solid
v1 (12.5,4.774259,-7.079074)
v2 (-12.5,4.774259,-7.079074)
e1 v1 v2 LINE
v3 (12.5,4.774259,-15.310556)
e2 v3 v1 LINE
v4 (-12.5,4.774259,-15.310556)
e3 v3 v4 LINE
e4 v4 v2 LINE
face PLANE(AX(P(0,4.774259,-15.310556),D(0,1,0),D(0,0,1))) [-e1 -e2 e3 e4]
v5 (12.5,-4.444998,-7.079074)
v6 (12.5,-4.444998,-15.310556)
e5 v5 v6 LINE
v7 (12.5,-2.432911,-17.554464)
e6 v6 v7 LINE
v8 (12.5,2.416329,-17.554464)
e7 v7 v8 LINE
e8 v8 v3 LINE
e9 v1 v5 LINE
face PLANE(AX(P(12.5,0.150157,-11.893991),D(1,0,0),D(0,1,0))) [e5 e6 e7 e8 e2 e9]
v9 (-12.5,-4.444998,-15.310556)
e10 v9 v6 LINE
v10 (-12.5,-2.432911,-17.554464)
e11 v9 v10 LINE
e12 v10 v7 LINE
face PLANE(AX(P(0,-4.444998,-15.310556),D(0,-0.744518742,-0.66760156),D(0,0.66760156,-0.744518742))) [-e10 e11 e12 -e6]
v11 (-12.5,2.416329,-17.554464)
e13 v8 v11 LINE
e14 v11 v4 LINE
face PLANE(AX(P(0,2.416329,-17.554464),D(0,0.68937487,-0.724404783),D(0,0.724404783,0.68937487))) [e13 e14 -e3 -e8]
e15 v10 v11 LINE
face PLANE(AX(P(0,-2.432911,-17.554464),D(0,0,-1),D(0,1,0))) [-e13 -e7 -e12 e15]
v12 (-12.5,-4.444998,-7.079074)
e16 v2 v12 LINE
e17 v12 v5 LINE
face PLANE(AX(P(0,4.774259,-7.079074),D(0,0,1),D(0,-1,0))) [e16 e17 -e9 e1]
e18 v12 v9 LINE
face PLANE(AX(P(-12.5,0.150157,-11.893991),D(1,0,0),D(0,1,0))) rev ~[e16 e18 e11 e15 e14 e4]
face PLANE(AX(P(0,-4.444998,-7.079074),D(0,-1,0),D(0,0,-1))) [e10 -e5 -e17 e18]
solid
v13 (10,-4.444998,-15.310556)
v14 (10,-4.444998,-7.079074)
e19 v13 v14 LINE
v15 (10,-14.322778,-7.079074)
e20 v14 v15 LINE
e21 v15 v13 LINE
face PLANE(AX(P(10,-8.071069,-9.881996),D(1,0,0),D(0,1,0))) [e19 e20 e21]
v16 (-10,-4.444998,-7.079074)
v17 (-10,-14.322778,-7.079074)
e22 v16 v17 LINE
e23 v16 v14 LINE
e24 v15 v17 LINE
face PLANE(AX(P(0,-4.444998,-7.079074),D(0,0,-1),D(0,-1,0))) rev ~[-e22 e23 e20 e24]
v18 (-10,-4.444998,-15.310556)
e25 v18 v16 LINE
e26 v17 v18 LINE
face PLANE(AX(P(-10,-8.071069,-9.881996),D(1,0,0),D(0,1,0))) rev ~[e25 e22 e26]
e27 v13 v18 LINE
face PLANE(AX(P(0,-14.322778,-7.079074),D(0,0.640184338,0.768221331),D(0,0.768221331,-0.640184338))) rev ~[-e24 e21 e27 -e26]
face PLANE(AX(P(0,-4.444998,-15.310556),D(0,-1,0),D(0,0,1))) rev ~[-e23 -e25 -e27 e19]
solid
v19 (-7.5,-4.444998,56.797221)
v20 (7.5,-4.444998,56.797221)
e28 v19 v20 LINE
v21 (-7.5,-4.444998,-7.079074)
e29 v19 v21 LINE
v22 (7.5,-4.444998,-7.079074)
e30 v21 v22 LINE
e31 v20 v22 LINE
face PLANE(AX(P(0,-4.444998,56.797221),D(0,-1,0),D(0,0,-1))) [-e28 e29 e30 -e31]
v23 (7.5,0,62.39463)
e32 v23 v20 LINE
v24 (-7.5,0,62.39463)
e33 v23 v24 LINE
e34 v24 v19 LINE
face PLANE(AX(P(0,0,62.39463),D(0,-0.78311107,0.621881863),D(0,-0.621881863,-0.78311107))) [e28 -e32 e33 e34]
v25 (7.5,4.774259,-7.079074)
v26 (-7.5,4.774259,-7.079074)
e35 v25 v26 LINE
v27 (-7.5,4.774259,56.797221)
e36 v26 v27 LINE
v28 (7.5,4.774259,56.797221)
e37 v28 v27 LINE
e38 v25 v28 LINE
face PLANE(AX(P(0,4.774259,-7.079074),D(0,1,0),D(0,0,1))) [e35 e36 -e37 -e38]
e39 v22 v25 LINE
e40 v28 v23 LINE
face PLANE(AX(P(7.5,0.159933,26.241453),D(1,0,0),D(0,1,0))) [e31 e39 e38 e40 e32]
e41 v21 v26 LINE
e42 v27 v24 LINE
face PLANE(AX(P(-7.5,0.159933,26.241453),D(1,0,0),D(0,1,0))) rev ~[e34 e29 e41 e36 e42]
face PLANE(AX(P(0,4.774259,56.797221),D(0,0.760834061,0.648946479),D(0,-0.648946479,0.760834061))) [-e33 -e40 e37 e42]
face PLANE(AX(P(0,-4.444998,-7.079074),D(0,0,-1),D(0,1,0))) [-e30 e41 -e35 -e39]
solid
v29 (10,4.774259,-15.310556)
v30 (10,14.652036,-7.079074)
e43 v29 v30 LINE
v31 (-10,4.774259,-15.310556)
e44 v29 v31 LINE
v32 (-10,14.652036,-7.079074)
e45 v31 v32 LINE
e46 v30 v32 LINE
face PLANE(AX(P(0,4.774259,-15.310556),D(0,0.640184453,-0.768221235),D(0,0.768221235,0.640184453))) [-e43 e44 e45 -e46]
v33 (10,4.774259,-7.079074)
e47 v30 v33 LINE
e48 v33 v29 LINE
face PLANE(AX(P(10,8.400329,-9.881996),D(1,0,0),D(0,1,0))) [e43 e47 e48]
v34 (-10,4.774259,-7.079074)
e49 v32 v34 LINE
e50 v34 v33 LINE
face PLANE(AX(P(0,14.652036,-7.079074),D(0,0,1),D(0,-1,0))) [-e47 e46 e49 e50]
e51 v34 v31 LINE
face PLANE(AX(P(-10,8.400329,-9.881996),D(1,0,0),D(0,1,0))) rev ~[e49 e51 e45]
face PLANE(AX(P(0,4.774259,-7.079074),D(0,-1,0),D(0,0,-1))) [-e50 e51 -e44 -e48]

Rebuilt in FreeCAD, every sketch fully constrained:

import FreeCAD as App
import Part
import Sketcher

V = App.Vector
Q = App.Units.Quantity

doc = App.newDocument("Part")
body = doc.addObject("PartDesign::Body", "Body")

# Sketch on YZ plane
sketch1 = body.newObject("Sketcher::SketchObject", "Sketch")
sketch1.AttachmentSupport = (doc.getObject("YZ_Plane"), [""])
sketch1.MapMode = "FlatFace"
sketch1.addGeometry([
    Part.LineSegment(V(0, 62, 0), V(-4, 57, 0)),  # 0
    Part.LineSegment(V(-4, 57, 0), V(-4, -7, 0)),  # 1
    Part.LineSegment(V(-4, -7, 0), V(5, -7, 0)),  # 2
    Part.LineSegment(V(5, -7, 0), V(5, 57, 0)),  # 3
    Part.LineSegment(V(5, 57, 0), V(0, 62, 0)),  # 4
], False)
sketch1.addConstraint([
    Sketcher.Constraint("Coincident", 0, 2, 1, 1),
    Sketcher.Constraint("Coincident", 1, 2, 2, 1),
    Sketcher.Constraint("Coincident", 2, 2, 3, 1),
    Sketcher.Constraint("Coincident", 3, 2, 4, 1),
    Sketcher.Constraint("Coincident", 4, 2, 0, 1),
    Sketcher.Constraint("Vertical", 1),
    Sketcher.Constraint("Horizontal", 2),
    Sketcher.Constraint("Vertical", 3),
    Sketcher.Constraint("PointOnObject", 4, 2, -2),
    Sketcher.Constraint("Horizontal", 0, 2, 3, 2),
    Sketcher.Constraint("DistanceX", 2, 1, 2, 2, Q("9.219257 mm")),
    Sketcher.Constraint("DistanceY", 1, 2, 1, 1, Q("63.876295 mm")),
    Sketcher.Constraint("DistanceY", -1, 1, 0, 2, Q("56.797221 mm")),
    Sketcher.Constraint("DistanceX", -1, 1, 2, 2, Q("4.774259 mm")),
    Sketcher.Constraint("DistanceY", -1, 1, 4, 2, Q("62.39463 mm")),
])
pad1 = body.newObject("PartDesign::Pad", "Pad")
pad1.Profile = sketch1
pad1.Length = 15
pad1.Midplane = True
body2 = doc.addObject("PartDesign::Body", "Body001")
body2.AllowCompound = True

# Sketch on YZ plane
sketch2 = body2.newObject("Sketcher::SketchObject", "Sketch001")
sketch2.AttachmentSupport = (doc.getObject("YZ_Plane001"), [""])
sketch2.MapMode = "FlatFace"
sketch2.addGeometry([
    Part.LineSegment(V(-4, -15, 0), V(-4, -7, 0)),  # 0
    Part.LineSegment(V(-4, -7, 0), V(-14, -7, 0)),  # 1
    Part.LineSegment(V(-14, -7, 0), V(-4, -15, 0)),  # 2
    Part.LineSegment(V(15, -7, 0), V(5, -7, 0)),  # 3
    Part.LineSegment(V(5, -7, 0), V(5, -15, 0)),  # 4
    Part.LineSegment(V(5, -15, 0), V(15, -7, 0)),  # 5
], False)
sketch2.addConstraint([
    Sketcher.Constraint("Coincident", 0, 2, 1, 1),
    Sketcher.Constraint("Coincident", 1, 2, 2, 1),
    Sketcher.Constraint("Coincident", 2, 2, 0, 1),
    Sketcher.Constraint("Coincident", 3, 2, 4, 1),
    Sketcher.Constraint("Coincident", 4, 2, 5, 1),
    Sketcher.Constraint("Coincident", 5, 2, 3, 1),
    Sketcher.Constraint("Vertical", 0),
    Sketcher.Constraint("Horizontal", 1),
    Sketcher.Constraint("Horizontal", 3),
    Sketcher.Constraint("Vertical", 4),
    Sketcher.Constraint("Horizontal", 1, 2, 3, 2),
    Sketcher.Constraint("Horizontal", 2, 2, 4, 2),
    Sketcher.Constraint("DistanceX", 1, 2, 1, 1, Q("9.87778 mm")),
    Sketcher.Constraint("DistanceX", 3, 2, 3, 1, Q("9.877777 mm")),
    Sketcher.Constraint("DistanceY", 0, 1, 0, 2, Q("8.231482 mm")),
    Sketcher.Constraint("DistanceX", -1, 1, 3, 2, Q("4.774259 mm")),
    Sketcher.Constraint("DistanceX", 0, 2, -1, 1, Q("4.444998 mm")),
    Sketcher.Constraint("DistanceY", 0, 2, -1, 1, Q("7.079074 mm")),
])
pad2 = body2.newObject("PartDesign::Pad", "Pad001")
pad2.Profile = sketch2
pad2.Length = 20
pad2.Midplane = True
body3 = doc.addObject("PartDesign::Body", "Body002")

# Sketch on YZ plane
sketch3 = body3.newObject("Sketcher::SketchObject", "Sketch002")
sketch3.AttachmentSupport = (doc.getObject("YZ_Plane002"), [""])
sketch3.MapMode = "FlatFace"
sketch3.addGeometry([
    Part.LineSegment(V(4.8, -7.1, 0), V(-4.4, -7.1, 0)),  # 0
    Part.LineSegment(V(-4.4, -7.1, 0), V(-4.4, -15.3, 0)),  # 1
    Part.LineSegment(V(-4.4, -15.3, 0), V(-2.4, -17.6, 0)),  # 2
    Part.LineSegment(V(-2.4, -17.6, 0), V(2.4, -17.6, 0)),  # 3
    Part.LineSegment(V(2.4, -17.6, 0), V(4.8, -15.3, 0)),  # 4
    Part.LineSegment(V(4.8, -15.3, 0), V(4.8, -7.1, 0)),  # 5
], False)
sketch3.addConstraint([
    Sketcher.Constraint("Coincident", 0, 2, 1, 1),
    Sketcher.Constraint("Coincident", 1, 2, 2, 1),
    Sketcher.Constraint("Coincident", 2, 2, 3, 1),
    Sketcher.Constraint("Coincident", 3, 2, 4, 1),
    Sketcher.Constraint("Coincident", 4, 2, 5, 1),
    Sketcher.Constraint("Coincident", 5, 2, 0, 1),
    Sketcher.Constraint("Horizontal", 0),
    Sketcher.Constraint("Vertical", 1),
    Sketcher.Constraint("Horizontal", 3),
    Sketcher.Constraint("Vertical", 5),
    Sketcher.Constraint("Horizontal", 1, 2, 4, 2),
    Sketcher.Constraint("DistanceX", 3, 1, 3, 2, Q("4.84924 mm")),
    Sketcher.Constraint("Distance", 4, Q("3.25499 mm")),
    Sketcher.Constraint("DistanceX", 0, 2, 0, 1, Q("9.219257 mm")),
    Sketcher.Constraint("DistanceY", 1, 2, 1, 1, Q("8.231482 mm")),
    Sketcher.Constraint("DistanceX", 2, 2, -1, 1, Q("2.432911 mm")),
    Sketcher.Constraint("DistanceX", -1, 1, 4, 2, Q("4.774259 mm")),
    Sketcher.Constraint("DistanceY", 0, 2, -1, 1, Q("7.079074 mm")),
])
pad3 = body3.newObject("PartDesign::Pad", "Pad002")
pad3.Profile = sketch3
pad3.Length = 25
pad3.Midplane = True

doc.recompute()
